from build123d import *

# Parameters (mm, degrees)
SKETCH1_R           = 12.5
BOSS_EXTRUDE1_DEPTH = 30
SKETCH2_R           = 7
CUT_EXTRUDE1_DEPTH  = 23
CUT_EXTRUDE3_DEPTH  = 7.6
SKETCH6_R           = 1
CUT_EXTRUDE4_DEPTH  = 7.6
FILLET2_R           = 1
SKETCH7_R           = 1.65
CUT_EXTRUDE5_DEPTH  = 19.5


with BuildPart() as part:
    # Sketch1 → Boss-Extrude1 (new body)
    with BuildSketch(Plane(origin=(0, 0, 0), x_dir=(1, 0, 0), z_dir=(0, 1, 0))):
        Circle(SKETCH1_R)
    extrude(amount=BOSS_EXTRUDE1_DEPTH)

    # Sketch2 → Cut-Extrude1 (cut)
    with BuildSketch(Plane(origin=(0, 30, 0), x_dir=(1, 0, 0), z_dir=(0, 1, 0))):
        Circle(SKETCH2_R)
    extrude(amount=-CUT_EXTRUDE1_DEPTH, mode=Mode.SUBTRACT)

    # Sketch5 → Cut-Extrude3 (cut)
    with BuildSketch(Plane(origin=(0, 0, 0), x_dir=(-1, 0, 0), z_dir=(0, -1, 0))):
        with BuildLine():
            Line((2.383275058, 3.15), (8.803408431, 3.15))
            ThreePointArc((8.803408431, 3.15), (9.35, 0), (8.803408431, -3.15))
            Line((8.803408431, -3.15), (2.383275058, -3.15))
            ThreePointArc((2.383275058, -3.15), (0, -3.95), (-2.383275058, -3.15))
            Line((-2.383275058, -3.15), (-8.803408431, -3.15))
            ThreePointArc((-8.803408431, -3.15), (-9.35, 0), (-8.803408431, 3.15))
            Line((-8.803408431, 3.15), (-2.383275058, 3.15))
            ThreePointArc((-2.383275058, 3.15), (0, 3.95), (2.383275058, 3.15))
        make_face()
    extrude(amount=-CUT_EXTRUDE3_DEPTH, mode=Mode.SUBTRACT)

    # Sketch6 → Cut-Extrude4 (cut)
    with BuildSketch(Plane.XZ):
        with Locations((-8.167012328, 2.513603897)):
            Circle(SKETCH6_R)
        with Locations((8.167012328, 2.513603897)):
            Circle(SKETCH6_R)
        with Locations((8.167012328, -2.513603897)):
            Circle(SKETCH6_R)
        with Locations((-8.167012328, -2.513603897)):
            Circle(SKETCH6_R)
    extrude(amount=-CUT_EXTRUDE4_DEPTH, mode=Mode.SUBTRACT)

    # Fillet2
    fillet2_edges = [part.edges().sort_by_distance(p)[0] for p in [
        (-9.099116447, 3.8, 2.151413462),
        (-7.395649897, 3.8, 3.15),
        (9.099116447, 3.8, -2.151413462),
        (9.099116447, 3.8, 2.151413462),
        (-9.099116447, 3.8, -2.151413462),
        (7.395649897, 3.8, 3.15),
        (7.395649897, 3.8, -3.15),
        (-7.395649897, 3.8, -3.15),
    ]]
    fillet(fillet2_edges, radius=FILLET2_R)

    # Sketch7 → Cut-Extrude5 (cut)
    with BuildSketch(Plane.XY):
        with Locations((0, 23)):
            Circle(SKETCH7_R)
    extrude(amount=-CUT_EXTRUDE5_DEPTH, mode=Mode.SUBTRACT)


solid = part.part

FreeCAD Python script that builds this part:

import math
import FreeCAD as App
import Part
import Sketcher
from FreeCAD import Vector


def edges_at(feature, points):
    """Names of the edges that pass closest to the given points."""
    edges = feature.Shape.Edges
    near = lambda p: min(range(len(edges)), key=lambda i: edges[i].distToShape(Part.Vertex(*p))[0])
    return sorted({f"Edge{near(p) + 1}" for p in points})

doc = App.newDocument("Part")
params = doc.addObject("Spreadsheet::Sheet", "Params")
for row, (alias, value) in enumerate([
    ("sketch1_diameter", "25 mm"),
    ("pad1_length", "30 mm"),
    ("sketch2_diameter", "14 mm"),
    ("pocket1_length", "23 mm"),
    ("sketch3_radius", "3.95 mm"),
    ("sketch3_radius2", "9.35 mm"),
    ("pocket2_length", "7.6 mm"),
    ("sketch4_diameter", "2 mm"),
    ("pocket3_length", "7.6 mm"),
    ("fillet_radius", "1 mm"),
    ("sketch5_diameter", "3.3 mm"),
    ("pocket4_length", "19.5 mm"),
], start=1):
    params.set(f"A{row}", alias)
    params.set(f"B{row}", "=" + value)
    params.setAlias(f"B{row}", alias)

body = doc.addObject("PartDesign::Body", "Body")

# Sketch on XZ plane
sketch1 = doc.addObject("Sketcher::SketchObject", "Sketch")
body.addObject(sketch1)
sketch1.AttachmentSupport = (doc.XZ_Plane, [""])
sketch1.MapMode = "FlatFace"
sketch1.addGeometry(Part.Circle(Vector(0, 0, 0), Vector(0, 0, 1), 12), False)
sketch1.addConstraint([
    Sketcher.Constraint("Coincident", 0, 3, -1, 1),
    Sketcher.Constraint("Diameter", 0, 25.0),
])
sketch1.setExpression("Constraints[1]", "Params.sketch1_diameter")
pad1 = doc.addObject("PartDesign::Pad", "Pad")
body.addObject(pad1)
pad1.Profile = sketch1
pad1.setExpression("Length", "Params.pad1_length")
pad1.Reversed = True

# Sketch on XZ plane
sketch2 = doc.addObject("Sketcher::SketchObject", "Sketch001")
body.addObject(sketch2)
sketch2.AttachmentSupport = (doc.XZ_Plane, [""])
sketch2.MapMode = "FlatFace"
sketch2.AttachmentOffset = App.Placement(Vector(0, 0, -30), App.Rotation())
sketch2.addGeometry(Part.Circle(Vector(0, 0, 0), Vector(0, 0, 1), 7), False)
sketch2.addConstraint([
    Sketcher.Constraint("Coincident", 0, 3, -1, 1),
    Sketcher.Constraint("Diameter", 0, 14.0),
])
sketch2.setExpression("Constraints[1]", "Params.sketch2_diameter")
pocket1 = doc.addObject("PartDesign::Pocket", "Pocket")
body.addObject(pocket1)
pocket1.Profile = sketch2
pocket1.setExpression("Length", "Params.pocket1_length")
pocket1.Reversed = True

# Sketch on XZ plane
sketch3 = doc.addObject("Sketcher::SketchObject", "Sketch002")
body.addObject(sketch3)
sketch3.AttachmentSupport = (doc.XZ_Plane, [""])
sketch3.MapMode = "FlatFace"
sketch3.addGeometry([
    Part.LineSegment(Vector(-8.8, -3.1, 0), Vector(-2.4, -3.1, 0)),  # 0
    Part.ArcOfCircle(Part.Circle(Vector(0, 0, 0), Vector(0, 0, 1), 4), math.radians(-127), math.radians(-53)),  # 1
    Part.LineSegment(Vector(2.4, -3.1, 0), Vector(8.8, -3.1, 0)),  # 2
    Part.ArcOfCircle(Part.Circle(Vector(0, 0, 0), Vector(0, 0, 1), 9.4), math.radians(-20), math.radians(20)),  # 3
    Part.LineSegment(Vector(8.8, 3.1, 0), Vector(2.4, 3.1, 0)),  # 4
    Part.ArcOfCircle(Part.Circle(Vector(0, 0, 0), Vector(0, 0, 1), 4), math.radians(53), math.radians(127)),  # 5
    Part.LineSegment(Vector(-2.4, 3.1, 0), Vector(-8.8, 3.1, 0)),  # 6
    Part.ArcOfCircle(Part.Circle(Vector(0, 0, 0), Vector(0, 0, 1), 9.4), math.radians(160), math.radians(200)),  # 7
], False)
sketch3.addConstraint([
    Sketcher.Constraint("Coincident", 0, 2, 1, 1),
    Sketcher.Constraint("Coincident", 1, 2, 2, 1),
    Sketcher.Constraint("Coincident", 2, 2, 3, 1),
    Sketcher.Constraint("Coincident", 3, 2, 4, 1),
    Sketcher.Constraint("Coincident", 4, 2, 5, 1),
    Sketcher.Constraint("Coincident", 5, 2, 6, 1),
    Sketcher.Constraint("Coincident", 6, 2, 7, 1),
    Sketcher.Constraint("Coincident", 7, 2, 0, 1),
    Sketcher.Constraint("Horizontal", 0),
    Sketcher.Constraint("Horizontal", 2),
    Sketcher.Constraint("Horizontal", 4),
    Sketcher.Constraint("Horizontal", 6),
    Sketcher.Constraint("Coincident", 1, 3, -1, 1),
    Sketcher.Constraint("Coincident", 3, 3, -1, 1),
    Sketcher.Constraint("Coincident", 5, 3, -1, 1),
    Sketcher.Constraint("Coincident", 7, 3, -1, 1),
    Sketcher.Constraint("Equal", 1, 5),
    Sketcher.Constraint("Equal", 3, 7),
    Sketcher.Constraint("Horizontal", 0, 2, 1, 2),
    Sketcher.Constraint("Horizontal", 4, 2, 5, 2),
    Sketcher.Constraint("Vertical", 2, 2, 3, 2),
    Sketcher.Constraint("Radius", 1, 3.95),
    Sketcher.Constraint("Radius", 3, 9.35),
    Sketcher.Constraint("DistanceY", 2, 2, 3, 2, 6.3),
])
sketch3.setExpression("Constraints[21]", "Params.sketch3_radius")
sketch3.setExpression("Constraints[22]", "Params.sketch3_radius2")
pocket2 = doc.addObject("PartDesign::Pocket", "Pocket001")
body.addObject(pocket2)
pocket2.Profile = sketch3
pocket2.setExpression("Length", "Params.pocket2_length")

# Sketch on XZ plane
sketch4 = doc.addObject("Sketcher::SketchObject", "Sketch003")
body.addObject(sketch4)
sketch4.AttachmentSupport = (doc.XZ_Plane, [""])
sketch4.MapMode = "FlatFace"
sketch4.addGeometry([
    Part.Circle(Vector(-8.2, 2.5, 0), Vector(0, 0, 1), 1),
    Part.Circle(Vector(8.2, 2.5, 0), Vector(0, 0, 1), 1),
    Part.Circle(Vector(8.2, -2.5, 0), Vector(0, 0, 1), 1),
    Part.Circle(Vector(-8.2, -2.5, 0), Vector(0, 0, 1), 1),
], False)
sketch4.addConstraint([
    Sketcher.Constraint("Equal", 0, 1),
    Sketcher.Constraint("Equal", 1, 2),
    Sketcher.Constraint("Equal", 2, 3),
    Sketcher.Constraint("Symmetric", 0, 3, 2, 3, -1, 1),
    Sketcher.Constraint("Symmetric", 1, 3, 3, 3, -1, 1),
    Sketcher.Constraint("Symmetric", 0, 3, 1, 3, -2),
    Sketcher.Constraint("Diameter", 0, 2.0),
    Sketcher.Constraint("DistanceX", 0, 3, -1, 1, 8.167012),
    Sketcher.Constraint("DistanceY", -1, 1, 0, 3, 2.513604),
])
sketch4.setExpression("Constraints[6]", "Params.sketch4_diameter")
pocket3 = doc.addObject("PartDesign::Pocket", "Pocket002")
body.addObject(pocket3)
pocket3.Profile = sketch4
pocket3.setExpression("Length", "Params.pocket3_length")
doc.recompute()

fillet = doc.addObject("PartDesign::Fillet", "Fillet")
body.addObject(fillet)
fillet.Base = (pocket3, edges_at(pocket3, [
    (-9.099, 3.8, 2.151),
    (-7.396, 3.8, 3.15),
    (9.099, 3.8, -2.151),
    (9.099, 3.8, 2.151),
    (-9.099, 3.8, -2.151),
    (7.396, 3.8, 3.15),
    (7.396, 3.8, -3.15),
    (-7.396, 3.8, -3.15),
]))
fillet.setExpression("Radius", "Params.fillet_radius")

# Sketch on XY plane
sketch5 = doc.addObject("Sketcher::SketchObject", "Sketch004")
body.addObject(sketch5)
sketch5.AttachmentSupport = (doc.XY_Plane, [""])
sketch5.MapMode = "FlatFace"
sketch5.addGeometry(Part.Circle(Vector(0, 23, 0), Vector(0, 0, 1), 1.6), False)
sketch5.addConstraint([
    Sketcher.Constraint("PointOnObject", 0, 3, -2),
    Sketcher.Constraint("Diameter", 0, 3.3),
    Sketcher.Constraint("DistanceY", -1, 1, 0, 3, 23.0),
])
sketch5.setExpression("Constraints[1]", "Params.sketch5_diameter")
pocket4 = doc.addObject("PartDesign::Pocket", "Pocket003")
body.addObject(pocket4)
pocket4.Profile = sketch5
pocket4.setExpression("Length", "Params.pocket4_length")

doc.recompute()
